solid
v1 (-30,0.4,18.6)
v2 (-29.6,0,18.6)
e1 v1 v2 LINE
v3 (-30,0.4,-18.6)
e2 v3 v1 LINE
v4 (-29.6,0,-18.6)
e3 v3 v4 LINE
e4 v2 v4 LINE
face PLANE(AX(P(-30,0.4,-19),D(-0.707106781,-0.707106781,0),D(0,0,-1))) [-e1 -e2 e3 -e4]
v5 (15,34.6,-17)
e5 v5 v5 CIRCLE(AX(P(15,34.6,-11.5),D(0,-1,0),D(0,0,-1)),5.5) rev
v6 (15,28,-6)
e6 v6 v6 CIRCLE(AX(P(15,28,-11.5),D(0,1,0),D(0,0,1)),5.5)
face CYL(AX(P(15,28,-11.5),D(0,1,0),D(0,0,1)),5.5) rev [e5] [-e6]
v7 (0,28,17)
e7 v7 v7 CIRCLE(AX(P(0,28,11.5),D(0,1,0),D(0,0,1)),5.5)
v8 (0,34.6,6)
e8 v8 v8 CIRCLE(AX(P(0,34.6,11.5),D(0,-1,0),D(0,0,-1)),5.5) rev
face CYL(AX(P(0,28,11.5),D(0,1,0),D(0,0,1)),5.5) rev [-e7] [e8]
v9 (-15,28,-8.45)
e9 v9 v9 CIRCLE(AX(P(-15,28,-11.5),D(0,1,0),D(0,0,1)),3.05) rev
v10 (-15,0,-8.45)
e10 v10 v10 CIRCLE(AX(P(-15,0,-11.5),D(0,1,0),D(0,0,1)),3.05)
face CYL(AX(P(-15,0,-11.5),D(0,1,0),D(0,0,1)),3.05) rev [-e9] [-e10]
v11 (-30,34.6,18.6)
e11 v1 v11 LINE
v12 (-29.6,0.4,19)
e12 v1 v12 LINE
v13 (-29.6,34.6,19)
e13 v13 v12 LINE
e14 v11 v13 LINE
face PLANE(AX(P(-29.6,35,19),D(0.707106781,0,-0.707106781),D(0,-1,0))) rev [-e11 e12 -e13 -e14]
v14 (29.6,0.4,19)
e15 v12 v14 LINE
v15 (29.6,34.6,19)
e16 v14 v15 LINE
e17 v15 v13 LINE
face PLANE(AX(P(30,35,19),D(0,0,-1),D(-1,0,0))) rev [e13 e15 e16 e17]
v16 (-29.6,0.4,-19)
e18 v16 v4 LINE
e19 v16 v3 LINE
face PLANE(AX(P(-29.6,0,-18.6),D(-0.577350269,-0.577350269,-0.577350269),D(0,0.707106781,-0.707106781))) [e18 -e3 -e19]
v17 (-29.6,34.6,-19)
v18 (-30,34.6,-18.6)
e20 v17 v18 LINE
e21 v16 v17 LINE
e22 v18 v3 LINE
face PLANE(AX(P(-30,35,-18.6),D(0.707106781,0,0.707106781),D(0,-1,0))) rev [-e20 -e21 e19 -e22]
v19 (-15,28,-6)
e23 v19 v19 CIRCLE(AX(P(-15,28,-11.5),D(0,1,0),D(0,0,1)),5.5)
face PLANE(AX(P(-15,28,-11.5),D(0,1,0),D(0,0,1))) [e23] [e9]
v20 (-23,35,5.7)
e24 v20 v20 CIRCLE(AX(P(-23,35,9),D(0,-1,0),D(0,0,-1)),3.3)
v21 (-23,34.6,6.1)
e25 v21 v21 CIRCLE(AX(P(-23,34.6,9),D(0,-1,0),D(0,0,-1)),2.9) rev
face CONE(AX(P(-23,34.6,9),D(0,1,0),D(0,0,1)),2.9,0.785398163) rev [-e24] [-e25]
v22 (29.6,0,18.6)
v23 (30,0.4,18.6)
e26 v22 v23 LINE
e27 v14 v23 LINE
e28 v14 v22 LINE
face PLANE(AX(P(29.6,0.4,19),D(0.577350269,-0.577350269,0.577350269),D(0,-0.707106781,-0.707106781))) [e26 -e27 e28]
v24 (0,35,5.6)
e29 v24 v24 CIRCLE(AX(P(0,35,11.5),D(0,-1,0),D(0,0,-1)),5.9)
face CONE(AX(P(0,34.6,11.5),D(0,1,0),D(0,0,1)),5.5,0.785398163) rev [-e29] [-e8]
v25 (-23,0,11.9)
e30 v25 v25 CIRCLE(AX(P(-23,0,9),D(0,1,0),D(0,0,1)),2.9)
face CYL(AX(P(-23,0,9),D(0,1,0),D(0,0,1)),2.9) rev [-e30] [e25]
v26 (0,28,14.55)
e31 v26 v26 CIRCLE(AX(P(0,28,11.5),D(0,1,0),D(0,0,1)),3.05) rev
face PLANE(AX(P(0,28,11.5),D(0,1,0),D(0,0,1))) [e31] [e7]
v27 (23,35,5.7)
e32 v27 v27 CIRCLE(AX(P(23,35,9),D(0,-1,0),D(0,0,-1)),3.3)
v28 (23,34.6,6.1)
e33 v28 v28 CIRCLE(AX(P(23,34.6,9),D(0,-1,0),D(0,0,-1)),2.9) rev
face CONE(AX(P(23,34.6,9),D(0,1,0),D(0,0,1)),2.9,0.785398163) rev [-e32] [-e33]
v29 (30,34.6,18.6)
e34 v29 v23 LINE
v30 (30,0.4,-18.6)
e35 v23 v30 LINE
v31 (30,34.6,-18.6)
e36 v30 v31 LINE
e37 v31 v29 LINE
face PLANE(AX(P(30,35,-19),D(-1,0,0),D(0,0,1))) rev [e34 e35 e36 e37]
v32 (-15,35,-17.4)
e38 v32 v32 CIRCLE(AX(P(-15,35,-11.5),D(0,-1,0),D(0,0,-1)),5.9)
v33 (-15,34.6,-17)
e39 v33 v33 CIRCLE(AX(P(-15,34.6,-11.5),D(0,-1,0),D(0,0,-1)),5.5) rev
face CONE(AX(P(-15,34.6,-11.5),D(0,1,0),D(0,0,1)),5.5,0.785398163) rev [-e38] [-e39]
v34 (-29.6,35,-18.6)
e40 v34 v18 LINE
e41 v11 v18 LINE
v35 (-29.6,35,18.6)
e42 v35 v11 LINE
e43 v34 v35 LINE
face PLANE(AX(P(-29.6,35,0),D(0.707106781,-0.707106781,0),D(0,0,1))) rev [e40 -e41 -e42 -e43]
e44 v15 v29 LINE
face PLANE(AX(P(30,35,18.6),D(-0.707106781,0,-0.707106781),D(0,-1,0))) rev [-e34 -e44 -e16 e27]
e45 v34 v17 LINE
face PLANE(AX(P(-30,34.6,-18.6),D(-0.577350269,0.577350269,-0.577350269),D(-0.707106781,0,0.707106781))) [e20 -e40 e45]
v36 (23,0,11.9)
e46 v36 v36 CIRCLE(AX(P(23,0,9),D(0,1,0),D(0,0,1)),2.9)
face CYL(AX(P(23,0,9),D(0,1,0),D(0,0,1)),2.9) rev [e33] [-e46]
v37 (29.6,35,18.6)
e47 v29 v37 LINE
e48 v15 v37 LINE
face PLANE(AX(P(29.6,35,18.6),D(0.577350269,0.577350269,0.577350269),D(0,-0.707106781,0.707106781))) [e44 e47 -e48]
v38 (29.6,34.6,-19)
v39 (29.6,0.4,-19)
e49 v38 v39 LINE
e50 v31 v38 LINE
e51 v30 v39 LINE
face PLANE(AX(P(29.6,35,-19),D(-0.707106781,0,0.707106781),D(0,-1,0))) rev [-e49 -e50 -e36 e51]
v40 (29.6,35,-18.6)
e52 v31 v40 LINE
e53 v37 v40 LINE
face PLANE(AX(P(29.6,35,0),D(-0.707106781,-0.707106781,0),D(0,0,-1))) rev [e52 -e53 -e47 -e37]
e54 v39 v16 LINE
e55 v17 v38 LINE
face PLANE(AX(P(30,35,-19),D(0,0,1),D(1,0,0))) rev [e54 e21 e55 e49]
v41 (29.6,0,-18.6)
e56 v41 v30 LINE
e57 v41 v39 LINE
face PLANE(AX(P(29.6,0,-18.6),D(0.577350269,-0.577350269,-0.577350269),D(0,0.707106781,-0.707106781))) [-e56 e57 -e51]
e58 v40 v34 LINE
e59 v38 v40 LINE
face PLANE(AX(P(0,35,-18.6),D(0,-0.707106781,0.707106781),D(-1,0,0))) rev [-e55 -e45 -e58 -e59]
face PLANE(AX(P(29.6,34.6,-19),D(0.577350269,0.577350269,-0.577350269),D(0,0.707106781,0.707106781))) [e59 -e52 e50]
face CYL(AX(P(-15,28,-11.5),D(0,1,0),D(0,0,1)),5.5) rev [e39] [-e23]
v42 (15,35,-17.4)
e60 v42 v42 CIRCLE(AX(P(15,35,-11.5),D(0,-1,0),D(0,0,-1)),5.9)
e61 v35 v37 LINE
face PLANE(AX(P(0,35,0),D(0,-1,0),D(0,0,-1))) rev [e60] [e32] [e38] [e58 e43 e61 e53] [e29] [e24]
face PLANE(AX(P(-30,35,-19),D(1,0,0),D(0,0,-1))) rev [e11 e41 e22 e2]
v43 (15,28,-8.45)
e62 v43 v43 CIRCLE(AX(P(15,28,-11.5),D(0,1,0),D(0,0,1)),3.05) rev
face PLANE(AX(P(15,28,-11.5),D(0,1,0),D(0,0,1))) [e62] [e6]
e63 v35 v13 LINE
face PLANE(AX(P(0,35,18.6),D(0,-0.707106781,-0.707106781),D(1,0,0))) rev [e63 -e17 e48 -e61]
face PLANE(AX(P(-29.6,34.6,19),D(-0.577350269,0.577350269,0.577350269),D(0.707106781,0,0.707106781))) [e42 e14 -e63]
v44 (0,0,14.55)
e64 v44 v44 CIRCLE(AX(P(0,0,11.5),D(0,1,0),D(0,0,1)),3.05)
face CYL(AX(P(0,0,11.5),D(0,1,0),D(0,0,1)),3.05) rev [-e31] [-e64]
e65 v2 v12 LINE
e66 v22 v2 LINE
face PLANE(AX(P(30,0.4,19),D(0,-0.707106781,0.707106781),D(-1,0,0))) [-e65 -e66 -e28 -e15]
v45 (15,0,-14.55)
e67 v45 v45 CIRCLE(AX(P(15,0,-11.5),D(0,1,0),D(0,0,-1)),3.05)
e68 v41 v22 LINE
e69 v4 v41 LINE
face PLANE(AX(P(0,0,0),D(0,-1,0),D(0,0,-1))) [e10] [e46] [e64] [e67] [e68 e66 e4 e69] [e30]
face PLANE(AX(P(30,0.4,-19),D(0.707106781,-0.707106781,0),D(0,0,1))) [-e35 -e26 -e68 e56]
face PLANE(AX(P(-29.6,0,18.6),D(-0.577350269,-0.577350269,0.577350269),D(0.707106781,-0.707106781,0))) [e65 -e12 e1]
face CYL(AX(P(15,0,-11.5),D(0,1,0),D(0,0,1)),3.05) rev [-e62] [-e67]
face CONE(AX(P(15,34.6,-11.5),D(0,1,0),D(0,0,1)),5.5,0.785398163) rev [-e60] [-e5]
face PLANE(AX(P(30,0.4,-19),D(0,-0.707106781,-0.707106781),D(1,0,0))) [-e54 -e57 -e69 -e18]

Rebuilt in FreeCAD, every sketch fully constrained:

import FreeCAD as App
import Part
import Sketcher
from FreeCAD import Vector
Q = App.Units.Quantity


def edges_at(feature, points):
    """Names of the edges that pass closest to the given points."""
    edges = feature.Shape.Edges
    near = lambda p: min(range(len(edges)), key=lambda i: edges[i].distToShape(Part.Vertex(*p))[0])
    return sorted({f"Edge{near(p) + 1}" for p in points})


def add_polygon(sketch, points):
    """Adds a closed chain of lines whose ends are joined by coincident constraints."""
    first, n = sketch.GeometryCount, len(points)
    for a, b in zip(points, points[1:] + points[:1]):
        sketch.addGeometry(Part.LineSegment(App.Vector(*a, 0), App.Vector(*b, 0)), False)
    for i in range(n):
        sketch.addConstraint(Sketcher.Constraint("Coincident", first + i, 2, first + (i + 1) % n, 1))

doc = App.newDocument("Part")
body = doc.addObject("PartDesign::Body", "Body")

sketch1 = body.newObject("Sketcher::SketchObject", "Sketch")
sketch1.AttachmentSupport = (doc.getObject("XZ_Plane"), [""])
sketch1.MapMode = "FlatFace"
add_polygon(sketch1, [(-30, -19), (-30, 19), (30, 19), (30, -19)])
sketch1.addConstraint([
    Sketcher.Constraint("Vertical", 0),
    Sketcher.Constraint("Horizontal", 1),
    Sketcher.Constraint("Vertical", 2),
    Sketcher.Constraint("Horizontal", 3),
    Sketcher.Constraint("Symmetric", 0, 2, 2, 2, -1, 1),
    Sketcher.Constraint("DistanceX", 1, 1, 1, 2, Q("60 mm")),
    Sketcher.Constraint("DistanceY", 0, 1, 0, 2, Q("38 mm")),
])
pad1 = body.newObject("PartDesign::Pad", "Pad")
pad1.Profile = sketch1
pad1.Length = 35
pad1.Reversed = True

sketch2 = body.newObject("Sketcher::SketchObject", "Sketch001")
sketch2.AttachmentSupport = (doc.getObject("XZ_Plane"), [""])
sketch2.MapMode = "FlatFace"
sketch2.AttachmentOffset = App.Placement(Vector(0, 0, -35), App.Rotation())
sketch2.addGeometry([
    Part.Circle(Vector(-23, 9, 0), Vector(0, 0, 1), 2.9),
    Part.Circle(Vector(23, 9, 0), Vector(0, 0, 1), 2.9),
    Part.Circle(Vector(-15, -11.5, 0), Vector(0, 0, 1), 3.05),
    Part.Circle(Vector(0, 11.5, 0), Vector(0, 0, 1), 3.05),
    Part.Circle(Vector(15, -11.5, 0), Vector(0, 0, 1), 3.05),
], False)
sketch2.addConstraint([
    Sketcher.Constraint("Equal", 0, 1),
    Sketcher.Constraint("Equal", 2, 3),
    Sketcher.Constraint("Equal", 3, 4),
    Sketcher.Constraint("Symmetric", 0, 3, 1, 3, -2),
    Sketcher.Constraint("Symmetric", 2, 3, 4, 3, -2),
    Sketcher.Constraint("PointOnObject", 3, 3, -2),
    Sketcher.Constraint("Diameter", 0, Q("5.8 mm")),
    Sketcher.Constraint("Diameter", 2, Q("6.1 mm")),
    Sketcher.Constraint("DistanceX", 0, 3, -1, 1, Q("23 mm")),
    Sketcher.Constraint("DistanceY", -1, 1, 0, 3, Q("9 mm")),
    Sketcher.Constraint("DistanceX", 2, 3, -1, 1, Q("15 mm")),
    Sketcher.Constraint("DistanceY", 2, 3, 3, 3, Q("23 mm")),
    Sketcher.Constraint("DistanceY", 2, 3, -1, 1, Q("11.5 mm")),
])
pocket1 = body.newObject("PartDesign::Pocket", "Pocket")
pocket1.Profile = sketch2
pocket1.Type = "ThroughAll"
pocket1.Reversed = True

sketch3 = body.newObject("Sketcher::SketchObject", "Sketch002")
sketch3.AttachmentSupport = (doc.getObject("XZ_Plane"), [""])
sketch3.MapMode = "FlatFace"
sketch3.AttachmentOffset = App.Placement(Vector(0, 0, -35), App.Rotation())
sketch3.addGeometry([
    Part.Circle(Vector(-15, -11.5, 0), Vector(0, 0, 1), 5.5),
    Part.Circle(Vector(15, -11.5, 0), Vector(0, 0, 1), 5.5),
    Part.Circle(Vector(0, 11.5, 0), Vector(0, 0, 1), 5.5),
], False)
sketch3.addConstraint([
    Sketcher.Constraint("Equal", 0, 1),
    Sketcher.Constraint("Equal", 1, 2),
    Sketcher.Constraint("Symmetric", 0, 3, 1, 3, -2),
    Sketcher.Constraint("PointOnObject", 2, 3, -2),
    Sketcher.Constraint("Diameter", 0, Q("11 mm")),
    Sketcher.Constraint("DistanceX", 0, 3, -1, 1, Q("15 mm")),
    Sketcher.Constraint("DistanceY", 0, 3, 2, 3, Q("23 mm")),
    Sketcher.Constraint("DistanceY", 0, 3, -1, 1, Q("11.5 mm")),
])
pocket2 = body.newObject("PartDesign::Pocket", "Pocket001")
pocket2.Profile = sketch3
pocket2.Length = 7
pocket2.Reversed = True
doc.recompute()

chamfer = body.newObject("PartDesign::Chamfer", "Chamfer")
chamfer.Base = (pocket2, edges_at(pocket2, [
    (30, 35, 0),
    (0, 35, -19),
    (-25.9, 35, 9),
    (20.1, 35, 9),
    (-20.5, 35, -11.5),
    (9.5, 35, -11.5),
    (-5.5, 35, 11.5),
    (-30, 35, 0),
    (0, 0, -19),
    (30, 0, 0),
    (0, 0, 19),
    (-30, 0, 0),
    (-30, 17.5, -19),
    (30, 17.5, -19),
    (30, 17.5, 19),
    (-30, 17.5, 19),
    (0, 35, 19),
]))
chamfer.Size = 0.4

doc.recompute()
